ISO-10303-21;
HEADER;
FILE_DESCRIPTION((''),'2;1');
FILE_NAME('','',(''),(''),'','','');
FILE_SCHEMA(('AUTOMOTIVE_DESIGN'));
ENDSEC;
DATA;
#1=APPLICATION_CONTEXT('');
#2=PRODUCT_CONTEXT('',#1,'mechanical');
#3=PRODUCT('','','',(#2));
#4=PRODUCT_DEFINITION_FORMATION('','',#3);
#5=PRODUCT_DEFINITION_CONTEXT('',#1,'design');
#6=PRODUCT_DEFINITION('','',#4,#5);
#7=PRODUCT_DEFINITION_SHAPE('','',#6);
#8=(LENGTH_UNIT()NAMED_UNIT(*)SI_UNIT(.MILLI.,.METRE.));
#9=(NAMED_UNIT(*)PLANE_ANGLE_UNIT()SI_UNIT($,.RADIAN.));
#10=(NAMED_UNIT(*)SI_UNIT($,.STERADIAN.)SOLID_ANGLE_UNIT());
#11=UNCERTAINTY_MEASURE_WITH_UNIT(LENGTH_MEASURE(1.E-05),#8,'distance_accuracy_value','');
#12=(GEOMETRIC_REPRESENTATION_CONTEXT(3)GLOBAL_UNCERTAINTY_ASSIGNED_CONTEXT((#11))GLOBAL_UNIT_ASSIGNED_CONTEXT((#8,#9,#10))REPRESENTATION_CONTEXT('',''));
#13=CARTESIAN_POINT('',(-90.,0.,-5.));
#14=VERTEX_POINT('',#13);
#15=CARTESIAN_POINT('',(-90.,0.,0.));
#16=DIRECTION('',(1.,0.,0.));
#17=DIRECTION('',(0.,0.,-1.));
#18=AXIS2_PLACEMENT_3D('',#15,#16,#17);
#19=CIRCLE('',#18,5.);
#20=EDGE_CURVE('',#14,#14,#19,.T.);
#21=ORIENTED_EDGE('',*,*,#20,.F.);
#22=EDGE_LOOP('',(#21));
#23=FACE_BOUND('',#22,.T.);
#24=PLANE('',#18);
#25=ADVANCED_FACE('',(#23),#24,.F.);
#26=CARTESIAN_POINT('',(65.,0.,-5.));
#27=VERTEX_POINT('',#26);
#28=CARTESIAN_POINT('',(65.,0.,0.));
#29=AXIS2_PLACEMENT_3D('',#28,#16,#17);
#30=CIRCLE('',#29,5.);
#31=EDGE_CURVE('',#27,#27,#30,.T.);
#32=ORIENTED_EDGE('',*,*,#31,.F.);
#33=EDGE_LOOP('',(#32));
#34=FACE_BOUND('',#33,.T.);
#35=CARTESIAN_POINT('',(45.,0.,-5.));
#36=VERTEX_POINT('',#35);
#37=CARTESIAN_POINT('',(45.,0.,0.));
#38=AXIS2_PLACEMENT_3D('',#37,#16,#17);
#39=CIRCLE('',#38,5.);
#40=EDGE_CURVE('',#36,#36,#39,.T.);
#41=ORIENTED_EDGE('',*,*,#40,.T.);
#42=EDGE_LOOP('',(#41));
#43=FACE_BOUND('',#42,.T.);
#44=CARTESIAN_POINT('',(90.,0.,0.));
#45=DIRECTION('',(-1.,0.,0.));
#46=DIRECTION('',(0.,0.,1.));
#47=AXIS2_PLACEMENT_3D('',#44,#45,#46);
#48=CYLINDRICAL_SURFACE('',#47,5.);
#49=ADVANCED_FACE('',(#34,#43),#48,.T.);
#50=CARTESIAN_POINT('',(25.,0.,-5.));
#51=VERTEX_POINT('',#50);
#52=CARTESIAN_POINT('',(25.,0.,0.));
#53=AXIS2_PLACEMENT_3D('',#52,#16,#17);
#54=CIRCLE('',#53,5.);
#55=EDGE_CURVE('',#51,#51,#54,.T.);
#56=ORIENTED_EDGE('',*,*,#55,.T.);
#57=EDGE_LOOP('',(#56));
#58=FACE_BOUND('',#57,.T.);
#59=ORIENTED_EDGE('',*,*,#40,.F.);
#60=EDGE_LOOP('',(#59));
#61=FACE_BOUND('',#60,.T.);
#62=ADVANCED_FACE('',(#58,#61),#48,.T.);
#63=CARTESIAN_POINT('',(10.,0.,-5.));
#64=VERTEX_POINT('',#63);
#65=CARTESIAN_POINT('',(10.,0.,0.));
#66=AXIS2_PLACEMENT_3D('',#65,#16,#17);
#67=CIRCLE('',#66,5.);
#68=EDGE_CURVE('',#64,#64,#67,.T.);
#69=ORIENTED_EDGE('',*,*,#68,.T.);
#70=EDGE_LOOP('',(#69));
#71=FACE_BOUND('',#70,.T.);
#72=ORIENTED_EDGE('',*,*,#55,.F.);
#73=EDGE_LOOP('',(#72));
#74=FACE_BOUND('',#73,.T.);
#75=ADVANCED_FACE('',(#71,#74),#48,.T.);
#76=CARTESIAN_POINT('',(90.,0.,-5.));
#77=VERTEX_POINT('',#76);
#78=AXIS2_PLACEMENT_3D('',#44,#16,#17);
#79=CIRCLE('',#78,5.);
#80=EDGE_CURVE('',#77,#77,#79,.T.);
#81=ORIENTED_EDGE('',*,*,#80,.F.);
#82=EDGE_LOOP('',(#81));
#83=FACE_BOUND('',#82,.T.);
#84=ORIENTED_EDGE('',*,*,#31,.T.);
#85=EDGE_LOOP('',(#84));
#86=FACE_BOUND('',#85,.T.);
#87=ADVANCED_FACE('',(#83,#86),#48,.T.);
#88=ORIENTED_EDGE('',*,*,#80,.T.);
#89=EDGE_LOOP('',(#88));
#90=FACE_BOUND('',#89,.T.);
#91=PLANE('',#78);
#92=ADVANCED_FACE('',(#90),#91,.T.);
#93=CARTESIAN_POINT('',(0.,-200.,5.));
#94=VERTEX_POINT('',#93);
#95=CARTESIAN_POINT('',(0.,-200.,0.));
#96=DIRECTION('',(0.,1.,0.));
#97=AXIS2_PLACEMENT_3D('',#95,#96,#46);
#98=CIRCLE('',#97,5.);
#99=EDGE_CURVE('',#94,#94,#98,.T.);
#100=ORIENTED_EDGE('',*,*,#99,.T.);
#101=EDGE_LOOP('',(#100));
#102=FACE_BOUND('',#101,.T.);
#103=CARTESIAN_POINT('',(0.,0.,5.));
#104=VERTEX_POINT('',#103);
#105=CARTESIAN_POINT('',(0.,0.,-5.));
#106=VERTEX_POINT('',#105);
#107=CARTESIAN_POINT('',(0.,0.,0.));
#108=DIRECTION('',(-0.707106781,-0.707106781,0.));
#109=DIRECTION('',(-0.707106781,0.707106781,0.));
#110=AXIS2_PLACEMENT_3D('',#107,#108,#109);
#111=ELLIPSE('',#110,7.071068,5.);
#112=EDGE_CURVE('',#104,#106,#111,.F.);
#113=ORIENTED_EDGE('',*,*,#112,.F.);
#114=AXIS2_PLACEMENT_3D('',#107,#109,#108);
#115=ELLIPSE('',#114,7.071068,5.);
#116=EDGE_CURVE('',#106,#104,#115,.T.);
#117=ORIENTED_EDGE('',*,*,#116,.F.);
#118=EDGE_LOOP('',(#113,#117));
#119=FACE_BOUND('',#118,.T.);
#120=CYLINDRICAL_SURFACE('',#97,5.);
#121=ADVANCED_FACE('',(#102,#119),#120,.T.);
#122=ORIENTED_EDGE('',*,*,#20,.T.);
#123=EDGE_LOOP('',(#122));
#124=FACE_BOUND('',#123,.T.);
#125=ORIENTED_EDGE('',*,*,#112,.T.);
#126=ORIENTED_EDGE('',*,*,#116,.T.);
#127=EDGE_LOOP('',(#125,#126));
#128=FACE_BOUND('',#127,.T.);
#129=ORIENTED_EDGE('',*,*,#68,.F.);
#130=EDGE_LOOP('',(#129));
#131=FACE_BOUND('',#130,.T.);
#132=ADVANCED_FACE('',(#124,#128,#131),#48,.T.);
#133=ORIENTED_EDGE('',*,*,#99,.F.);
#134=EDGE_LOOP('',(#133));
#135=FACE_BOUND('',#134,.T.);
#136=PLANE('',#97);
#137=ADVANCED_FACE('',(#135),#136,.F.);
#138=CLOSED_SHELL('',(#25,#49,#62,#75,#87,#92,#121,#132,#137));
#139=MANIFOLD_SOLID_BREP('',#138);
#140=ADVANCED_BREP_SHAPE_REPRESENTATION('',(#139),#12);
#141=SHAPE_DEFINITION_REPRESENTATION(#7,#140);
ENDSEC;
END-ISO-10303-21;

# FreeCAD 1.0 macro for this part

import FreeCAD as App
import Part
import Sketcher
from FreeCAD import Vector
Q = App.Units.Quantity

doc = App.newDocument("Part")
params = doc.addObject("Spreadsheet::Sheet", "Params")
for row, (alias, value) in enumerate([
    ("sketch1_diameter", "10 mm"),
    ("pad1_length", "180 mm"),
    ("sketch2_diameter", "10 mm"),
    ("pad2_length", "200 mm"),
], start=1):
    params.set(f"A{row}", alias)
    params.set(f"B{row}", "=" + value)
    params.setAlias(f"B{row}", alias)

body = doc.addObject("PartDesign::Body", "Body")

# Sketch on YZ plane
sketch1 = body.newObject("Sketcher::SketchObject", "Sketch")
sketch1.AttachmentSupport = (doc.getObject("YZ_Plane"), [""])
sketch1.MapMode = "FlatFace"
sketch1.addGeometry(Part.Circle(Vector(0, 0, 0), Vector(0, 0, 1), 5), False)
sketch1.addConstraint([
    Sketcher.Constraint("Coincident", 0, 3, -1, 1),
    Sketcher.Constraint("Diameter", 0, Q("10 mm")),
])
sketch1.setExpression("Constraints[1]", "Params.sketch1_diameter")
pad1 = body.newObject("PartDesign::Pad", "Pad")
pad1.Profile = sketch1
pad1.setExpression("Length", "Params.pad1_length")
pad1.Midplane = True

# Sketch on XZ plane
sketch2 = body.newObject("Sketcher::SketchObject", "Sketch001")
sketch2.AttachmentSupport = (doc.getObject("XZ_Plane"), [""])
sketch2.MapMode = "FlatFace"
sketch2.addGeometry(Part.Circle(Vector(0, 0, 0), Vector(0, 0, 1), 5), False)
sketch2.addConstraint([
    Sketcher.Constraint("Coincident", 0, 3, -1, 1),
    Sketcher.Constraint("Diameter", 0, Q("10 mm")),
])
sketch2.setExpression("Constraints[1]", "Params.sketch2_diameter")
pad2 = body.newObject("PartDesign::Pad", "Pad001")
pad2.Profile = sketch2
pad2.setExpression("Length", "Params.pad2_length")

doc.recompute()
